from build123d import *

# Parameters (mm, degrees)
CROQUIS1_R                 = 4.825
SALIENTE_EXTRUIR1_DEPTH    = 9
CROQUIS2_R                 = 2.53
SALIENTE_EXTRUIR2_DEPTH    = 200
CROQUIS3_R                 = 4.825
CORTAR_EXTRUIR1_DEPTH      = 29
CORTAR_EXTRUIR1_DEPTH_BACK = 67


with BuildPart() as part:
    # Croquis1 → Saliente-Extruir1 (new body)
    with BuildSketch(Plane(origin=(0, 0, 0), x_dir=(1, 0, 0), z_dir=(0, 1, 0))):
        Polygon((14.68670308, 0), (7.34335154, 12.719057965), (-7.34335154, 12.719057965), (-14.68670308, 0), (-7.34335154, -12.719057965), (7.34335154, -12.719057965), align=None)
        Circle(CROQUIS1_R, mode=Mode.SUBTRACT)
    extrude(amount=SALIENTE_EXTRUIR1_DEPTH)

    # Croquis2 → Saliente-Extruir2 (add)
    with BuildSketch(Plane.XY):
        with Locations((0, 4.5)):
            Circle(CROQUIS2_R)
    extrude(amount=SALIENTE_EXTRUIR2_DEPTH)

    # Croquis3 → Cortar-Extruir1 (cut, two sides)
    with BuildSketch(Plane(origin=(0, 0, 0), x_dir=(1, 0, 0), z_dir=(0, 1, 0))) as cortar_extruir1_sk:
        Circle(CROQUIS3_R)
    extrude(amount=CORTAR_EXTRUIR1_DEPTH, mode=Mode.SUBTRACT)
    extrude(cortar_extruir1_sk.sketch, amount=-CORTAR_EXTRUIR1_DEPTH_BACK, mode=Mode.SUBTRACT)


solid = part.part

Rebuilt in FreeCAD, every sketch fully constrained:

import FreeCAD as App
import Part
import Sketcher
Q = App.Units.Quantity


def add_polygon(sketch, points):
    """Adds a closed chain of lines whose ends are joined by coincident constraints."""
    first, n = sketch.GeometryCount, len(points)
    for a, b in zip(points, points[1:] + points[:1]):
        sketch.addGeometry(Part.LineSegment(App.Vector(*a, 0), App.Vector(*b, 0)), False)
    for i in range(n):
        sketch.addConstraint(Sketcher.Constraint("Coincident", first + i, 2, first + (i + 1) % n, 1))

doc = App.newDocument("Part")
params = doc.addObject("Spreadsheet::Sheet", "Params")
for row, (alias, value) in enumerate([
    ("sketch1_diameter", "9.65 mm"),
    ("pad1_length", "9 mm"),
    ("sketch2_diameter", "5.06 mm"),
    ("pad2_length", "200 mm"),
    ("sketch3_diameter", "9.65 mm"),
], start=1):
    params.set(f"A{row}", alias)
    params.set(f"B{row}", "=" + value)
    params.setAlias(f"B{row}", alias)

body = doc.addObject("PartDesign::Body", "Body")

sketch1 = body.newObject("Sketcher::SketchObject", "Sketch")
sketch1.AttachmentSupport = (doc.getObject("XZ_Plane"), [""])
sketch1.MapMode = "FlatFace"
add_polygon(sketch1, [(14.686703, 0), (7.343352, -12.719058), (-7.343352, -12.719058), (-14.686703, 0), (-7.343352, 12.719058), (7.343352, 12.719058)])
sketch1.addGeometry(Part.Circle(App.Vector(0, 0, 0), App.Vector(0, 0, 1), 4.825), False)
sketch1.addConstraint(Sketcher.Constraint("Horizontal", 1))
sketch1.addConstraint(Sketcher.Constraint("Horizontal", 4))
sketch1.addConstraint(Sketcher.Constraint("Coincident", 6, 3, -1, 1))
sketch1.addConstraint(Sketcher.Constraint("Symmetric", 0, 2, 3, 2, -1, 1))
sketch1.addConstraint(Sketcher.Constraint("Symmetric", 2, 2, 5, 2, -1, 1))
sketch1.addConstraint(Sketcher.Constraint("PointOnObject", 2, 2, -1))
sketch1.addConstraint(Sketcher.Constraint("Parallel", 2, 5))
sketch1.addConstraint(Sketcher.Constraint("Vertical", 1, 2, 3, 2))
sketch1.addConstraint(Sketcher.Constraint("Diameter", 6, 9.65))
sketch1.addConstraint(Sketcher.Constraint("Angle", 0, Q("-120 deg")))
sketch1.addConstraint(Sketcher.Constraint("DistanceX", 1, 2, 1, 1, 14.686703))
sketch1.addConstraint(Sketcher.Constraint("DistanceX", 2, 2, 1, 2, 7.343352))
sketch1.setExpression("Constraints[14]", "Params.sketch1_diameter")
pad1 = body.newObject("PartDesign::Pad", "Pad")
pad1.Profile = sketch1
pad1.setExpression("Length", "Params.pad1_length")
pad1.Reversed = True

sketch2 = body.newObject("Sketcher::SketchObject", "Sketch001")
sketch2.AttachmentSupport = (doc.getObject("XY_Plane"), [""])
sketch2.MapMode = "FlatFace"
sketch2.addGeometry(Part.Circle(App.Vector(0, 4.5, 0), App.Vector(0, 0, 1), 2.53), False)
sketch2.addConstraint(Sketcher.Constraint("PointOnObject", 0, 3, -2))
sketch2.addConstraint(Sketcher.Constraint("Diameter", 0, 5.06))
sketch2.addConstraint(Sketcher.Constraint("DistanceY", -1, 1, 0, 3, 4.5))
sketch2.setExpression("Constraints[1]", "Params.sketch2_diameter")
pad2 = body.newObject("PartDesign::Pad", "Pad001")
pad2.Profile = sketch2
pad2.setExpression("Length", "Params.pad2_length")

sketch3 = body.newObject("Sketcher::SketchObject", "Sketch002")
sketch3.AttachmentSupport = (doc.getObject("XZ_Plane"), [""])
sketch3.MapMode = "FlatFace"
sketch3.addGeometry(Part.Circle(App.Vector(0, 0, 0), App.Vector(0, 0, 1), 4.825), False)
sketch3.addConstraint(Sketcher.Constraint("Coincident", 0, 3, -1, 1))
sketch3.addConstraint(Sketcher.Constraint("Diameter", 0, 9.65))
sketch3.setExpression("Constraints[1]", "Params.sketch3_diameter")
pocket1 = body.newObject("PartDesign::Pocket", "Pocket")
pocket1.Profile = sketch3
pocket1.Type = "ThroughAll"
pocket1.Midplane = True

doc.recompute()
